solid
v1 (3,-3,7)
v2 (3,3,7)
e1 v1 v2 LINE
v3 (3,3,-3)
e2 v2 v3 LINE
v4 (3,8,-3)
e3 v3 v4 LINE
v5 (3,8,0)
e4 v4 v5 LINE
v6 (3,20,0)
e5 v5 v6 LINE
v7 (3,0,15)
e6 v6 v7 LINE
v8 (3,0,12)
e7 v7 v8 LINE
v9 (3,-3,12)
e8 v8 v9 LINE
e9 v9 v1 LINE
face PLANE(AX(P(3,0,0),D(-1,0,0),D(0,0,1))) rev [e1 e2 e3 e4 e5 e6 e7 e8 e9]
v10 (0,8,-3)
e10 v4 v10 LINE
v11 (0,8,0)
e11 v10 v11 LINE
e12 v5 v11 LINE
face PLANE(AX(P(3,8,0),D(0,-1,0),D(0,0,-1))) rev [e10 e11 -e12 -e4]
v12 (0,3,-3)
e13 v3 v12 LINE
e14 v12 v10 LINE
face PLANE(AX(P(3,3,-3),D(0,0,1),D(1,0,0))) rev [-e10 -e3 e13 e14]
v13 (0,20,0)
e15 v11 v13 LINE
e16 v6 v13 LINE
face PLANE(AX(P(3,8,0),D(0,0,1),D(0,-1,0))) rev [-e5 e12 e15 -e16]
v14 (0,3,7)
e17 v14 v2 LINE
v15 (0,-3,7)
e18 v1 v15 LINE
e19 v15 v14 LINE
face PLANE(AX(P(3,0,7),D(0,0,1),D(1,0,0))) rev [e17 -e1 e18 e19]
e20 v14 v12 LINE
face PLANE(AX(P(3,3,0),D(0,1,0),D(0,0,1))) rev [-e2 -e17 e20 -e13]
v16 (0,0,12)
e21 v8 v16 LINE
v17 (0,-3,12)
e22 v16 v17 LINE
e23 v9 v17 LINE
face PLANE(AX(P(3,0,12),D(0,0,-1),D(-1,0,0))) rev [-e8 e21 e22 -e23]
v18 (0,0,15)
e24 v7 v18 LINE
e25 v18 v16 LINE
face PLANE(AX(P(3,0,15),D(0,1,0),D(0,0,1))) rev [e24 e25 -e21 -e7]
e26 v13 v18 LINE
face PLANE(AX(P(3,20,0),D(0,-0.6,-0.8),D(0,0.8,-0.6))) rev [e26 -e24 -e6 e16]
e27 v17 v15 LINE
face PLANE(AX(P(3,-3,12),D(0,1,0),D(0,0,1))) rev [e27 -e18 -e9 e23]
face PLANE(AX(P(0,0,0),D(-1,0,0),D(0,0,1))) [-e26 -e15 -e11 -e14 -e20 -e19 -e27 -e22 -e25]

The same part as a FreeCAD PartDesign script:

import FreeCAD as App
import Part
import Sketcher

doc = App.newDocument("Part")
body = doc.addObject("PartDesign::Body", "Body")

# Sketch on YZ plane
sketch1 = body.newObject("Sketcher::SketchObject", "Sketch")
sketch1.AttachmentSupport = (doc.getObject("YZ_Plane"), [""])
sketch1.MapMode = "FlatFace"
sketch1.addGeometry(Part.LineSegment(App.Vector(20, 0, 0), App.Vector(0, 15, 0)), False)
sketch1.addGeometry(Part.LineSegment(App.Vector(0, 15, 0), App.Vector(0, 12, 0)), False)
sketch1.addGeometry(Part.LineSegment(App.Vector(0, 12, 0), App.Vector(-3, 12, 0)), False)
sketch1.addGeometry(Part.LineSegment(App.Vector(-3, 12, 0), App.Vector(-3, 7, 0)), False)
sketch1.addGeometry(Part.LineSegment(App.Vector(-3, 7, 0), App.Vector(0, 7, 0)), False)
sketch1.addGeometry(Part.LineSegment(App.Vector(0, 7, 0), App.Vector(0, 0, 0)), False)
sketch1.addGeometry(Part.LineSegment(App.Vector(0, 0, 0), App.Vector(3, 0, 0)), False)
sketch1.addGeometry(Part.LineSegment(App.Vector(3, 0, 0), App.Vector(3, -3, 0)), False)
sketch1.addGeometry(Part.LineSegment(App.Vector(3, -3, 0), App.Vector(8, -3, 0)), False)
sketch1.addGeometry(Part.LineSegment(App.Vector(8, -3, 0), App.Vector(8, 0, 0)), False)
sketch1.addGeometry(Part.LineSegment(App.Vector(8, 0, 0), App.Vector(20, 0, 0)), False)
sketch1.addConstraint(Sketcher.Constraint("Coincident", 0, 2, 1, 1))
sketch1.addConstraint(Sketcher.Constraint("Coincident", 1, 2, 2, 1))
sketch1.addConstraint(Sketcher.Constraint("Coincident", 2, 2, 3, 1))
sketch1.addConstraint(Sketcher.Constraint("Coincident", 3, 2, 4, 1))
sketch1.addConstraint(Sketcher.Constraint("Coincident", 4, 2, 5, 1))
sketch1.addConstraint(Sketcher.Constraint("Coincident", 5, 2, 6, 1))
sketch1.addConstraint(Sketcher.Constraint("Coincident", 6, 2, 7, 1))
sketch1.addConstraint(Sketcher.Constraint("Coincident", 7, 2, 8, 1))
sketch1.addConstraint(Sketcher.Constraint("Coincident", 8, 2, 9, 1))
sketch1.addConstraint(Sketcher.Constraint("Coincident", 9, 2, 10, 1))
sketch1.addConstraint(Sketcher.Constraint("Coincident", 10, 2, 0, 1))
sketch1.addConstraint(Sketcher.Constraint("Vertical", 1))
sketch1.addConstraint(Sketcher.Constraint("Horizontal", 2))
sketch1.addConstraint(Sketcher.Constraint("Vertical", 3))
sketch1.addConstraint(Sketcher.Constraint("Horizontal", 4))
sketch1.addConstraint(Sketcher.Constraint("Vertical", 5))
sketch1.addConstraint(Sketcher.Constraint("Horizontal", 6))
sketch1.addConstraint(Sketcher.Constraint("Vertical", 7))
sketch1.addConstraint(Sketcher.Constraint("Horizontal", 8))
sketch1.addConstraint(Sketcher.Constraint("Vertical", 9))
sketch1.addConstraint(Sketcher.Constraint("Horizontal", 10))
sketch1.addConstraint(Sketcher.Constraint("Coincident", 5, 2, -1, 1))
sketch1.addConstraint(Sketcher.Constraint("PointOnObject", 0, 2, -2))
sketch1.addConstraint(Sketcher.Constraint("PointOnObject", 9, 2, -1))
sketch1.addConstraint(Sketcher.Constraint("Equal", 4, 6))
sketch1.addConstraint(Sketcher.Constraint("Equal", 6, 1))
sketch1.addConstraint(Sketcher.Constraint("Equal", 8, 3))
sketch1.addConstraint(Sketcher.Constraint("Equal", 1, 7))
sketch1.addConstraint(Sketcher.Constraint("DistanceX", 2, 2, 2, 1, 3.0))
sketch1.addConstraint(Sketcher.Constraint("DistanceX", 8, 1, 8, 2, 5.0))
sketch1.addConstraint(Sketcher.Constraint("DistanceX", 10, 1, 10, 2, 12.0))
sketch1.addConstraint(Sketcher.Constraint("DistanceY", 5, 2, 5, 1, 7.0))
pad1 = body.newObject("PartDesign::Pad", "Pad")
pad1.Profile = sketch1
pad1.Length = 3

# Sketch on YZ plane
sketch2 = body.newObject("Sketcher::SketchObject", "Sketch001")
sketch2.AttachmentSupport = (doc.getObject("YZ_Plane"), [""])
sketch2.MapMode = "FlatFace"
sketch2.AttachmentOffset = App.Placement(App.Vector(0, 0, 3), App.Rotation())
sketch2.addGeometry(Part.LineSegment(App.Vector(3, 7, 0), App.Vector(0, 7, 0)), False)
sketch2.addGeometry(Part.LineSegment(App.Vector(0, 7, 0), App.Vector(0, 0, 0)), False)
sketch2.addGeometry(Part.LineSegment(App.Vector(0, 0, 0), App.Vector(3, 0, 0)), False)
sketch2.addGeometry(Part.LineSegment(App.Vector(3, 0, 0), App.Vector(3, 7, 0)), False)
sketch2.addConstraint(Sketcher.Constraint("Coincident", 0, 2, 1, 1))
sketch2.addConstraint(Sketcher.Constraint("Coincident", 1, 2, 2, 1))
sketch2.addConstraint(Sketcher.Constraint("Coincident", 2, 2, 3, 1))
sketch2.addConstraint(Sketcher.Constraint("Coincident", 3, 2, 0, 1))
sketch2.addConstraint(Sketcher.Constraint("Horizontal", 0))
sketch2.addConstraint(Sketcher.Constraint("Vertical", 1))
sketch2.addConstraint(Sketcher.Constraint("Horizontal", 2))
sketch2.addConstraint(Sketcher.Constraint("Vertical", 3))
sketch2.addConstraint(Sketcher.Constraint("Coincident", 1, 2, -1, 1))
sketch2.addConstraint(Sketcher.Constraint("DistanceX", 0, 2, 0, 1, 3.0))
sketch2.addConstraint(Sketcher.Constraint("DistanceY", 1, 2, 1, 1, 7.0))
pocket1 = body.newObject("PartDesign::Pocket", "Pocket")
pocket1.Profile = sketch2
pocket1.Length = 10

doc.recompute()
